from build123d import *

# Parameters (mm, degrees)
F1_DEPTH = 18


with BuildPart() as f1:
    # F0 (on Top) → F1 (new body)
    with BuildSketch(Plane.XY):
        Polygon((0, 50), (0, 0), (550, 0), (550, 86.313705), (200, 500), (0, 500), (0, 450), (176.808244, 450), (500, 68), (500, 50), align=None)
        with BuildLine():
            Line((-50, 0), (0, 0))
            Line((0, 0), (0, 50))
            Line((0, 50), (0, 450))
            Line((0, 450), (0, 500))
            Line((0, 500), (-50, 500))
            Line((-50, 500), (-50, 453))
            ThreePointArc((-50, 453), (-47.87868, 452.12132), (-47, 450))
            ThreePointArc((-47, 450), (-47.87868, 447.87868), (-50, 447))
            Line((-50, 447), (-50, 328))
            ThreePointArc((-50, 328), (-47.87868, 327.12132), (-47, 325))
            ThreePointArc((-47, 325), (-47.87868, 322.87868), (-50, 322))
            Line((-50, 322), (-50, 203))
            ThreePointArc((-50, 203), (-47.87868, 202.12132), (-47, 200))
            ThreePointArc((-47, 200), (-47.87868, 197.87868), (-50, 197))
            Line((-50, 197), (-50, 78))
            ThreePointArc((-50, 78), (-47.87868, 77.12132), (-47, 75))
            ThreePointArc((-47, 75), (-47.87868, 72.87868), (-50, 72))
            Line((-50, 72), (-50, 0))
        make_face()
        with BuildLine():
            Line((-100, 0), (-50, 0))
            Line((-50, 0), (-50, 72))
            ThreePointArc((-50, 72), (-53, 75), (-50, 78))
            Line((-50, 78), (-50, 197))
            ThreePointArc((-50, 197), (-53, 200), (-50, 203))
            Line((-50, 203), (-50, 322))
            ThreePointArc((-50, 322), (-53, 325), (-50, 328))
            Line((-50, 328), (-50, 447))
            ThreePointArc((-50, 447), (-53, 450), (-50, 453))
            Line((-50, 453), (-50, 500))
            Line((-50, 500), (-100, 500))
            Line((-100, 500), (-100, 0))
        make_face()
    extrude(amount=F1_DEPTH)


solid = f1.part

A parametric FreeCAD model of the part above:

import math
import FreeCAD as App
import Part
import Sketcher

doc = App.newDocument("Part")
body = doc.addObject("PartDesign::Body", "Body")

# Sketch on XY plane
sketch1 = doc.addObject("Sketcher::SketchObject", "Sketch")
body.addObject(sketch1)
sketch1.AttachmentSupport = (doc.XY_Plane, [""])
sketch1.MapMode = "FlatFace"
sketch1.addGeometry([
    Part.LineSegment(App.Vector(550, 0, 0), App.Vector(550, 86.3, 0)),  # 0
    Part.LineSegment(App.Vector(550, 86.3, 0), App.Vector(200, 500, 0)),  # 1
    Part.LineSegment(App.Vector(200, 500, 0), App.Vector(-100, 500, 0)),  # 2
    Part.LineSegment(App.Vector(-100, 500, 0), App.Vector(-100, 0, 0)),  # 3
    Part.LineSegment(App.Vector(-100, 0, 0), App.Vector(550, 0, 0)),  # 4
    Part.ArcOfCircle(Part.Circle(App.Vector(-50, 450, 0), App.Vector(0, 0, 1), 3), math.radians(0), math.radians(90)),  # 5
    Part.ArcOfCircle(Part.Circle(App.Vector(-50, 450, 0), App.Vector(0, 0, 1), 3), math.radians(-90), math.radians(0)),  # 6
    Part.ArcOfCircle(Part.Circle(App.Vector(-50, 450, 0), App.Vector(0, 0, 1), 3), math.radians(90), math.radians(270)),  # 7
    Part.ArcOfCircle(Part.Circle(App.Vector(-50, 325, 0), App.Vector(0, 0, 1), 3), math.radians(0), math.radians(90)),  # 8
    Part.ArcOfCircle(Part.Circle(App.Vector(-50, 325, 0), App.Vector(0, 0, 1), 3), math.radians(-90), math.radians(0)),  # 9
    Part.ArcOfCircle(Part.Circle(App.Vector(-50, 325, 0), App.Vector(0, 0, 1), 3), math.radians(90), math.radians(270)),  # 10
    Part.ArcOfCircle(Part.Circle(App.Vector(-50, 200, 0), App.Vector(0, 0, 1), 3), math.radians(0), math.radians(90)),  # 11
    Part.ArcOfCircle(Part.Circle(App.Vector(-50, 200, 0), App.Vector(0, 0, 1), 3), math.radians(-90), math.radians(0)),  # 12
    Part.ArcOfCircle(Part.Circle(App.Vector(-50, 200, 0), App.Vector(0, 0, 1), 3), math.radians(90), math.radians(270)),  # 13
    Part.ArcOfCircle(Part.Circle(App.Vector(-50, 75, 0), App.Vector(0, 0, 1), 3), math.radians(0), math.radians(90)),  # 14
    Part.ArcOfCircle(Part.Circle(App.Vector(-50, 75, 0), App.Vector(0, 0, 1), 3), math.radians(-90), math.radians(0)),  # 15
    Part.ArcOfCircle(Part.Circle(App.Vector(-50, 75, 0), App.Vector(0, 0, 1), 3), math.radians(90), math.radians(270)),  # 16
    Part.LineSegment(App.Vector(0, 450, 0), App.Vector(176.8, 450, 0)),  # 17
    Part.LineSegment(App.Vector(176.8, 450, 0), App.Vector(500, 68, 0)),  # 18
    Part.LineSegment(App.Vector(500, 68, 0), App.Vector(500, 50, 0)),  # 19
    Part.LineSegment(App.Vector(500, 50, 0), App.Vector(0, 50, 0)),  # 20
    Part.LineSegment(App.Vector(0, 50, 0), App.Vector(0, 450, 0)),  # 21
], False)
sketch1.addConstraint([
    Sketcher.Constraint("Coincident", 0, 2, 1, 1),
    Sketcher.Constraint("Coincident", 1, 2, 2, 1),
    Sketcher.Constraint("Coincident", 2, 2, 3, 1),
    Sketcher.Constraint("Coincident", 3, 2, 4, 1),
    Sketcher.Constraint("Coincident", 4, 2, 0, 1),
    Sketcher.Constraint("Tangent", 5, 1, 6, 2),
    Sketcher.Constraint("Tangent", 6, 1, 7, 2),
    Sketcher.Constraint("Tangent", 7, 1, 5, 2),
    Sketcher.Constraint("Tangent", 8, 1, 9, 2),
    Sketcher.Constraint("Tangent", 9, 1, 10, 2),
    Sketcher.Constraint("Tangent", 10, 1, 8, 2),
    Sketcher.Constraint("Tangent", 11, 1, 12, 2),
    Sketcher.Constraint("Tangent", 12, 1, 13, 2),
    Sketcher.Constraint("Tangent", 13, 1, 11, 2),
    Sketcher.Constraint("Tangent", 14, 1, 15, 2),
    Sketcher.Constraint("Tangent", 15, 1, 16, 2),
    Sketcher.Constraint("Tangent", 16, 1, 14, 2),
    Sketcher.Constraint("Coincident", 17, 2, 18, 1),
    Sketcher.Constraint("Coincident", 18, 2, 19, 1),
    Sketcher.Constraint("Coincident", 19, 2, 20, 1),
    Sketcher.Constraint("Coincident", 20, 2, 21, 1),
    Sketcher.Constraint("Coincident", 21, 2, 17, 1),
    Sketcher.Constraint("Vertical", 0),
    Sketcher.Constraint("Horizontal", 2),
    Sketcher.Constraint("Vertical", 3),
    Sketcher.Constraint("Horizontal", 4),
    Sketcher.Constraint("Horizontal", 17),
    Sketcher.Constraint("Vertical", 19),
    Sketcher.Constraint("Horizontal", 20),
    Sketcher.Constraint("Vertical", 21),
    Sketcher.Constraint("Equal", 7, 8),
    Sketcher.Constraint("Equal", 10, 11),
    Sketcher.Constraint("Equal", 13, 14),
    Sketcher.Constraint("PointOnObject", 3, 2, -1),
    Sketcher.Constraint("PointOnObject", 20, 2, -2),
    Sketcher.Constraint("Parallel", 1, 18),
    Sketcher.Constraint("Horizontal", 7, 3, 5, 1),
    Sketcher.Constraint("Horizontal", 10, 3, 8, 1),
    Sketcher.Constraint("Horizontal", 13, 3, 11, 1),
    Sketcher.Constraint("Horizontal", 16, 3, 14, 1),
    Sketcher.Constraint("Horizontal", 5, 1, 17, 2),
    Sketcher.Constraint("Vertical", 7, 3, 8, 3),
    Sketcher.Constraint("Vertical", 10, 3, 11, 3),
    Sketcher.Constraint("Vertical", 13, 3, 14, 3),
    Sketcher.Constraint("Vertical", 16, 3, 6, 1),
    Sketcher.Constraint("Vertical", 6, 1, 7, 1),
    Sketcher.Constraint("Vertical", 7, 1, 9, 1),
    Sketcher.Constraint("Vertical", 9, 1, 10, 1),
    Sketcher.Constraint("Vertical", 10, 1, 12, 1),
    Sketcher.Constraint("Vertical", 12, 1, 13, 1),
    Sketcher.Constraint("Vertical", 13, 1, 15, 1),
    Sketcher.Constraint("Vertical", 15, 1, 16, 1),
    Sketcher.Constraint("Equal", 20, 3),
    Sketcher.Constraint("Radius", 5, 3.000001),
    Sketcher.Constraint("DistanceX", 2, 2, 2, 1, 300.0),
    Sketcher.Constraint("DistanceX", 4, 1, 4, 2, 650.0),
    Sketcher.Constraint("DistanceX", 20, 2, 20, 1, 500.0),
    Sketcher.Constraint("DistanceY", 19, 2, 19, 1, 18.0),
    Sketcher.Constraint("DistanceY", 21, 1, 21, 2, 400.0),
    Sketcher.Constraint("DistanceX", 5, 3, -1, 1, 50.000001),
    Sketcher.Constraint("DistanceY", -1, 1, 5, 3, 449.999999),
    Sketcher.Constraint("DistanceY", -1, 1, 8, 3, 324.999999),
    Sketcher.Constraint("DistanceY", -1, 1, 11, 3, 199.999999),
    Sketcher.Constraint("DistanceY", -1, 1, 14, 3, 74.999999),
    Sketcher.Constraint("DistanceX", -1, 1, 0, 2, 550.0),
    Sketcher.Constraint("Distance", 1, 541.88223),
])
pad1 = doc.addObject("PartDesign::Pad", "Pad")
body.addObject(pad1)
pad1.Profile = sketch1
pad1.Length = 18

doc.recompute()
